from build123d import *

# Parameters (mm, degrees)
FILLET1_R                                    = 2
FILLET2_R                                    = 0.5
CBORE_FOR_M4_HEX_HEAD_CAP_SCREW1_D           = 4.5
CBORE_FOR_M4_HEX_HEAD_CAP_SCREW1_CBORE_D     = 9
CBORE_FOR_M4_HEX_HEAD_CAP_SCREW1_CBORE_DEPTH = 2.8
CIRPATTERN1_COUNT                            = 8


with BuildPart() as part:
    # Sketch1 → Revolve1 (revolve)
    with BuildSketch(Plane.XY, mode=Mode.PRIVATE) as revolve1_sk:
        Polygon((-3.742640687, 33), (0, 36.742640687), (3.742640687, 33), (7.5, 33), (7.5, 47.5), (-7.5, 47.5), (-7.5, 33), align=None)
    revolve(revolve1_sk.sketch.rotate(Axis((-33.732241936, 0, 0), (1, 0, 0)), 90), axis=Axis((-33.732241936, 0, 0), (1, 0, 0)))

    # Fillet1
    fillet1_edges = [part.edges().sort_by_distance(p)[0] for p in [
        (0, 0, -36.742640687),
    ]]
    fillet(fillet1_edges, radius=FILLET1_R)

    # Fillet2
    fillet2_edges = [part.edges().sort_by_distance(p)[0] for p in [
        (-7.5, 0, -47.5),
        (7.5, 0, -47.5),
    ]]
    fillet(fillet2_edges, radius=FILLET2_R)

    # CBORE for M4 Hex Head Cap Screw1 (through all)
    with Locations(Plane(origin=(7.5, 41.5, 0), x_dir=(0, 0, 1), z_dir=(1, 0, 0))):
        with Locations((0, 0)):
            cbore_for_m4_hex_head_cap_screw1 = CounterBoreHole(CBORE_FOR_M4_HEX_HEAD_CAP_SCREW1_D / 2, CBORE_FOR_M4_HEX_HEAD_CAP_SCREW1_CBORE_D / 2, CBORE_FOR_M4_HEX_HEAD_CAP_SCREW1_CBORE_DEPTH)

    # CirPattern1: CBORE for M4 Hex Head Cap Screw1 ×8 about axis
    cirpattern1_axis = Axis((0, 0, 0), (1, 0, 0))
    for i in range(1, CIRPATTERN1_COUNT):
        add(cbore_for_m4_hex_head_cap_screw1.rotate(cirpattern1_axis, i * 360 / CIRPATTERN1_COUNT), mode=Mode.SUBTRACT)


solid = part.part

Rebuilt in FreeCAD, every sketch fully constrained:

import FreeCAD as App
import Part
import Sketcher
from FreeCAD import Vector


def edges_at(feature, points):
    """Names of the edges that pass closest to the given points."""
    edges = feature.Shape.Edges
    near = lambda p: min(range(len(edges)), key=lambda i: edges[i].distToShape(Part.Vertex(*p))[0])
    return sorted({f"Edge{near(p) + 1}" for p in points})


def add_polygon(sketch, points):
    """Adds a closed chain of lines whose ends are joined by coincident constraints."""
    first, n = sketch.GeometryCount, len(points)
    for a, b in zip(points, points[1:] + points[:1]):
        sketch.addGeometry(Part.LineSegment(App.Vector(*a, 0), App.Vector(*b, 0)), False)
    for i in range(n):
        sketch.addConstraint(Sketcher.Constraint("Coincident", first + i, 2, first + (i + 1) % n, 1))

doc = App.newDocument("Part")
body = doc.addObject("PartDesign::Body", "Body")

# Sketch on XY plane
sketch1 = body.newObject("Sketcher::SketchObject", "Sketch")
sketch1.AttachmentSupport = (doc.getObject("XY_Plane"), [""])
sketch1.MapMode = "FlatFace"
add_polygon(sketch1, [(-3.7, 33), (0, 36.7), (3.7, 33), (7.5, 33), (7.5, 47.5), (-7.5, 47.5), (-7.5, 33)])  # lines 0-6
sketch1.addConstraint(Sketcher.Constraint("Horizontal", 2))
sketch1.addConstraint(Sketcher.Constraint("Vertical", 3))
sketch1.addConstraint(Sketcher.Constraint("Horizontal", 4))
sketch1.addConstraint(Sketcher.Constraint("Vertical", 5))
sketch1.addConstraint(Sketcher.Constraint("Horizontal", 6))
sketch1.addConstraint(Sketcher.Constraint("Symmetric", 2, 2, 5, 2, -2))
sketch1.addConstraint(Sketcher.Constraint("PointOnObject", 0, 2, -2))
sketch1.addConstraint(Sketcher.Constraint("Perpendicular", 0, 1))
sketch1.addConstraint(Sketcher.Constraint("Equal", 2, 6))
sketch1.addConstraint(Sketcher.Constraint("DistanceX", 4, 2, 4, 1, 15.0))
sketch1.addConstraint(Sketcher.Constraint("DistanceY", 3, 1, 3, 2, 14.5))
sketch1.addConstraint(Sketcher.Constraint("DistanceY", -1, 1, 1, 2, 33.0))
sketch1.addConstraint(Sketcher.Constraint("DistanceX", 2, 1, 2, 2, 3.757359))
revolution = body.newObject("PartDesign::Revolution", "Revolution")
revolution.Profile = sketch1
revolution.ReferenceAxis = (sketch1, ["H_Axis"])
revolution.Angle = 360
doc.recompute()

fillet = body.newObject("PartDesign::Fillet", "Fillet")
fillet.Base = (revolution, edges_at(revolution, [(0, 0, -36.743)]))
fillet.Radius = 2
doc.recompute()

fillet2 = body.newObject("PartDesign::Fillet", "Fillet001")
fillet2.Base = (fillet, edges_at(fillet, [(-7.5, 0, -47.5), (7.5, 0, -47.5)]))
fillet2.Radius = 0.5

# Sketch on YZ plane
sketch2 = body.newObject("Sketcher::SketchObject", "Sketch001")
sketch2.AttachmentSupport = (doc.getObject("YZ_Plane"), [""])
sketch2.MapMode = "FlatFace"
sketch2.AttachmentOffset = App.Placement(Vector(0, 0, 7.5), App.Rotation())
sketch2.addGeometry(Part.Circle(Vector(41.5, 0, 0), Vector(0, 0, 1), 2.2), False)
sketch2.addConstraint(Sketcher.Constraint("PointOnObject", 0, 3, -1))
sketch2.addConstraint(Sketcher.Constraint("Diameter", 0, 4.5))
sketch2.addConstraint(Sketcher.Constraint("DistanceX", -1, 1, 0, 3, 41.5))
doc.recompute()
hole = body.newObject("PartDesign::Hole", "Hole")
hole.Profile = sketch2
hole.ThreadType = "None"
hole.Diameter = 4.5
hole.DepthType = "ThroughAll"
hole.HoleCutType = "Counterbore"
hole.HoleCutDiameter = 9
hole.HoleCutDepth = 2.8
doc.recompute()

polarpattern = body.newObject("PartDesign::PolarPattern", "PolarPattern")
polarpattern.Originals = [hole]
polarpattern.Axis = (doc.getObject("X_Axis"), [""])
polarpattern.Angle = 360
polarpattern.Occurrences = 8
body.Tip = polarpattern

doc.recompute()
